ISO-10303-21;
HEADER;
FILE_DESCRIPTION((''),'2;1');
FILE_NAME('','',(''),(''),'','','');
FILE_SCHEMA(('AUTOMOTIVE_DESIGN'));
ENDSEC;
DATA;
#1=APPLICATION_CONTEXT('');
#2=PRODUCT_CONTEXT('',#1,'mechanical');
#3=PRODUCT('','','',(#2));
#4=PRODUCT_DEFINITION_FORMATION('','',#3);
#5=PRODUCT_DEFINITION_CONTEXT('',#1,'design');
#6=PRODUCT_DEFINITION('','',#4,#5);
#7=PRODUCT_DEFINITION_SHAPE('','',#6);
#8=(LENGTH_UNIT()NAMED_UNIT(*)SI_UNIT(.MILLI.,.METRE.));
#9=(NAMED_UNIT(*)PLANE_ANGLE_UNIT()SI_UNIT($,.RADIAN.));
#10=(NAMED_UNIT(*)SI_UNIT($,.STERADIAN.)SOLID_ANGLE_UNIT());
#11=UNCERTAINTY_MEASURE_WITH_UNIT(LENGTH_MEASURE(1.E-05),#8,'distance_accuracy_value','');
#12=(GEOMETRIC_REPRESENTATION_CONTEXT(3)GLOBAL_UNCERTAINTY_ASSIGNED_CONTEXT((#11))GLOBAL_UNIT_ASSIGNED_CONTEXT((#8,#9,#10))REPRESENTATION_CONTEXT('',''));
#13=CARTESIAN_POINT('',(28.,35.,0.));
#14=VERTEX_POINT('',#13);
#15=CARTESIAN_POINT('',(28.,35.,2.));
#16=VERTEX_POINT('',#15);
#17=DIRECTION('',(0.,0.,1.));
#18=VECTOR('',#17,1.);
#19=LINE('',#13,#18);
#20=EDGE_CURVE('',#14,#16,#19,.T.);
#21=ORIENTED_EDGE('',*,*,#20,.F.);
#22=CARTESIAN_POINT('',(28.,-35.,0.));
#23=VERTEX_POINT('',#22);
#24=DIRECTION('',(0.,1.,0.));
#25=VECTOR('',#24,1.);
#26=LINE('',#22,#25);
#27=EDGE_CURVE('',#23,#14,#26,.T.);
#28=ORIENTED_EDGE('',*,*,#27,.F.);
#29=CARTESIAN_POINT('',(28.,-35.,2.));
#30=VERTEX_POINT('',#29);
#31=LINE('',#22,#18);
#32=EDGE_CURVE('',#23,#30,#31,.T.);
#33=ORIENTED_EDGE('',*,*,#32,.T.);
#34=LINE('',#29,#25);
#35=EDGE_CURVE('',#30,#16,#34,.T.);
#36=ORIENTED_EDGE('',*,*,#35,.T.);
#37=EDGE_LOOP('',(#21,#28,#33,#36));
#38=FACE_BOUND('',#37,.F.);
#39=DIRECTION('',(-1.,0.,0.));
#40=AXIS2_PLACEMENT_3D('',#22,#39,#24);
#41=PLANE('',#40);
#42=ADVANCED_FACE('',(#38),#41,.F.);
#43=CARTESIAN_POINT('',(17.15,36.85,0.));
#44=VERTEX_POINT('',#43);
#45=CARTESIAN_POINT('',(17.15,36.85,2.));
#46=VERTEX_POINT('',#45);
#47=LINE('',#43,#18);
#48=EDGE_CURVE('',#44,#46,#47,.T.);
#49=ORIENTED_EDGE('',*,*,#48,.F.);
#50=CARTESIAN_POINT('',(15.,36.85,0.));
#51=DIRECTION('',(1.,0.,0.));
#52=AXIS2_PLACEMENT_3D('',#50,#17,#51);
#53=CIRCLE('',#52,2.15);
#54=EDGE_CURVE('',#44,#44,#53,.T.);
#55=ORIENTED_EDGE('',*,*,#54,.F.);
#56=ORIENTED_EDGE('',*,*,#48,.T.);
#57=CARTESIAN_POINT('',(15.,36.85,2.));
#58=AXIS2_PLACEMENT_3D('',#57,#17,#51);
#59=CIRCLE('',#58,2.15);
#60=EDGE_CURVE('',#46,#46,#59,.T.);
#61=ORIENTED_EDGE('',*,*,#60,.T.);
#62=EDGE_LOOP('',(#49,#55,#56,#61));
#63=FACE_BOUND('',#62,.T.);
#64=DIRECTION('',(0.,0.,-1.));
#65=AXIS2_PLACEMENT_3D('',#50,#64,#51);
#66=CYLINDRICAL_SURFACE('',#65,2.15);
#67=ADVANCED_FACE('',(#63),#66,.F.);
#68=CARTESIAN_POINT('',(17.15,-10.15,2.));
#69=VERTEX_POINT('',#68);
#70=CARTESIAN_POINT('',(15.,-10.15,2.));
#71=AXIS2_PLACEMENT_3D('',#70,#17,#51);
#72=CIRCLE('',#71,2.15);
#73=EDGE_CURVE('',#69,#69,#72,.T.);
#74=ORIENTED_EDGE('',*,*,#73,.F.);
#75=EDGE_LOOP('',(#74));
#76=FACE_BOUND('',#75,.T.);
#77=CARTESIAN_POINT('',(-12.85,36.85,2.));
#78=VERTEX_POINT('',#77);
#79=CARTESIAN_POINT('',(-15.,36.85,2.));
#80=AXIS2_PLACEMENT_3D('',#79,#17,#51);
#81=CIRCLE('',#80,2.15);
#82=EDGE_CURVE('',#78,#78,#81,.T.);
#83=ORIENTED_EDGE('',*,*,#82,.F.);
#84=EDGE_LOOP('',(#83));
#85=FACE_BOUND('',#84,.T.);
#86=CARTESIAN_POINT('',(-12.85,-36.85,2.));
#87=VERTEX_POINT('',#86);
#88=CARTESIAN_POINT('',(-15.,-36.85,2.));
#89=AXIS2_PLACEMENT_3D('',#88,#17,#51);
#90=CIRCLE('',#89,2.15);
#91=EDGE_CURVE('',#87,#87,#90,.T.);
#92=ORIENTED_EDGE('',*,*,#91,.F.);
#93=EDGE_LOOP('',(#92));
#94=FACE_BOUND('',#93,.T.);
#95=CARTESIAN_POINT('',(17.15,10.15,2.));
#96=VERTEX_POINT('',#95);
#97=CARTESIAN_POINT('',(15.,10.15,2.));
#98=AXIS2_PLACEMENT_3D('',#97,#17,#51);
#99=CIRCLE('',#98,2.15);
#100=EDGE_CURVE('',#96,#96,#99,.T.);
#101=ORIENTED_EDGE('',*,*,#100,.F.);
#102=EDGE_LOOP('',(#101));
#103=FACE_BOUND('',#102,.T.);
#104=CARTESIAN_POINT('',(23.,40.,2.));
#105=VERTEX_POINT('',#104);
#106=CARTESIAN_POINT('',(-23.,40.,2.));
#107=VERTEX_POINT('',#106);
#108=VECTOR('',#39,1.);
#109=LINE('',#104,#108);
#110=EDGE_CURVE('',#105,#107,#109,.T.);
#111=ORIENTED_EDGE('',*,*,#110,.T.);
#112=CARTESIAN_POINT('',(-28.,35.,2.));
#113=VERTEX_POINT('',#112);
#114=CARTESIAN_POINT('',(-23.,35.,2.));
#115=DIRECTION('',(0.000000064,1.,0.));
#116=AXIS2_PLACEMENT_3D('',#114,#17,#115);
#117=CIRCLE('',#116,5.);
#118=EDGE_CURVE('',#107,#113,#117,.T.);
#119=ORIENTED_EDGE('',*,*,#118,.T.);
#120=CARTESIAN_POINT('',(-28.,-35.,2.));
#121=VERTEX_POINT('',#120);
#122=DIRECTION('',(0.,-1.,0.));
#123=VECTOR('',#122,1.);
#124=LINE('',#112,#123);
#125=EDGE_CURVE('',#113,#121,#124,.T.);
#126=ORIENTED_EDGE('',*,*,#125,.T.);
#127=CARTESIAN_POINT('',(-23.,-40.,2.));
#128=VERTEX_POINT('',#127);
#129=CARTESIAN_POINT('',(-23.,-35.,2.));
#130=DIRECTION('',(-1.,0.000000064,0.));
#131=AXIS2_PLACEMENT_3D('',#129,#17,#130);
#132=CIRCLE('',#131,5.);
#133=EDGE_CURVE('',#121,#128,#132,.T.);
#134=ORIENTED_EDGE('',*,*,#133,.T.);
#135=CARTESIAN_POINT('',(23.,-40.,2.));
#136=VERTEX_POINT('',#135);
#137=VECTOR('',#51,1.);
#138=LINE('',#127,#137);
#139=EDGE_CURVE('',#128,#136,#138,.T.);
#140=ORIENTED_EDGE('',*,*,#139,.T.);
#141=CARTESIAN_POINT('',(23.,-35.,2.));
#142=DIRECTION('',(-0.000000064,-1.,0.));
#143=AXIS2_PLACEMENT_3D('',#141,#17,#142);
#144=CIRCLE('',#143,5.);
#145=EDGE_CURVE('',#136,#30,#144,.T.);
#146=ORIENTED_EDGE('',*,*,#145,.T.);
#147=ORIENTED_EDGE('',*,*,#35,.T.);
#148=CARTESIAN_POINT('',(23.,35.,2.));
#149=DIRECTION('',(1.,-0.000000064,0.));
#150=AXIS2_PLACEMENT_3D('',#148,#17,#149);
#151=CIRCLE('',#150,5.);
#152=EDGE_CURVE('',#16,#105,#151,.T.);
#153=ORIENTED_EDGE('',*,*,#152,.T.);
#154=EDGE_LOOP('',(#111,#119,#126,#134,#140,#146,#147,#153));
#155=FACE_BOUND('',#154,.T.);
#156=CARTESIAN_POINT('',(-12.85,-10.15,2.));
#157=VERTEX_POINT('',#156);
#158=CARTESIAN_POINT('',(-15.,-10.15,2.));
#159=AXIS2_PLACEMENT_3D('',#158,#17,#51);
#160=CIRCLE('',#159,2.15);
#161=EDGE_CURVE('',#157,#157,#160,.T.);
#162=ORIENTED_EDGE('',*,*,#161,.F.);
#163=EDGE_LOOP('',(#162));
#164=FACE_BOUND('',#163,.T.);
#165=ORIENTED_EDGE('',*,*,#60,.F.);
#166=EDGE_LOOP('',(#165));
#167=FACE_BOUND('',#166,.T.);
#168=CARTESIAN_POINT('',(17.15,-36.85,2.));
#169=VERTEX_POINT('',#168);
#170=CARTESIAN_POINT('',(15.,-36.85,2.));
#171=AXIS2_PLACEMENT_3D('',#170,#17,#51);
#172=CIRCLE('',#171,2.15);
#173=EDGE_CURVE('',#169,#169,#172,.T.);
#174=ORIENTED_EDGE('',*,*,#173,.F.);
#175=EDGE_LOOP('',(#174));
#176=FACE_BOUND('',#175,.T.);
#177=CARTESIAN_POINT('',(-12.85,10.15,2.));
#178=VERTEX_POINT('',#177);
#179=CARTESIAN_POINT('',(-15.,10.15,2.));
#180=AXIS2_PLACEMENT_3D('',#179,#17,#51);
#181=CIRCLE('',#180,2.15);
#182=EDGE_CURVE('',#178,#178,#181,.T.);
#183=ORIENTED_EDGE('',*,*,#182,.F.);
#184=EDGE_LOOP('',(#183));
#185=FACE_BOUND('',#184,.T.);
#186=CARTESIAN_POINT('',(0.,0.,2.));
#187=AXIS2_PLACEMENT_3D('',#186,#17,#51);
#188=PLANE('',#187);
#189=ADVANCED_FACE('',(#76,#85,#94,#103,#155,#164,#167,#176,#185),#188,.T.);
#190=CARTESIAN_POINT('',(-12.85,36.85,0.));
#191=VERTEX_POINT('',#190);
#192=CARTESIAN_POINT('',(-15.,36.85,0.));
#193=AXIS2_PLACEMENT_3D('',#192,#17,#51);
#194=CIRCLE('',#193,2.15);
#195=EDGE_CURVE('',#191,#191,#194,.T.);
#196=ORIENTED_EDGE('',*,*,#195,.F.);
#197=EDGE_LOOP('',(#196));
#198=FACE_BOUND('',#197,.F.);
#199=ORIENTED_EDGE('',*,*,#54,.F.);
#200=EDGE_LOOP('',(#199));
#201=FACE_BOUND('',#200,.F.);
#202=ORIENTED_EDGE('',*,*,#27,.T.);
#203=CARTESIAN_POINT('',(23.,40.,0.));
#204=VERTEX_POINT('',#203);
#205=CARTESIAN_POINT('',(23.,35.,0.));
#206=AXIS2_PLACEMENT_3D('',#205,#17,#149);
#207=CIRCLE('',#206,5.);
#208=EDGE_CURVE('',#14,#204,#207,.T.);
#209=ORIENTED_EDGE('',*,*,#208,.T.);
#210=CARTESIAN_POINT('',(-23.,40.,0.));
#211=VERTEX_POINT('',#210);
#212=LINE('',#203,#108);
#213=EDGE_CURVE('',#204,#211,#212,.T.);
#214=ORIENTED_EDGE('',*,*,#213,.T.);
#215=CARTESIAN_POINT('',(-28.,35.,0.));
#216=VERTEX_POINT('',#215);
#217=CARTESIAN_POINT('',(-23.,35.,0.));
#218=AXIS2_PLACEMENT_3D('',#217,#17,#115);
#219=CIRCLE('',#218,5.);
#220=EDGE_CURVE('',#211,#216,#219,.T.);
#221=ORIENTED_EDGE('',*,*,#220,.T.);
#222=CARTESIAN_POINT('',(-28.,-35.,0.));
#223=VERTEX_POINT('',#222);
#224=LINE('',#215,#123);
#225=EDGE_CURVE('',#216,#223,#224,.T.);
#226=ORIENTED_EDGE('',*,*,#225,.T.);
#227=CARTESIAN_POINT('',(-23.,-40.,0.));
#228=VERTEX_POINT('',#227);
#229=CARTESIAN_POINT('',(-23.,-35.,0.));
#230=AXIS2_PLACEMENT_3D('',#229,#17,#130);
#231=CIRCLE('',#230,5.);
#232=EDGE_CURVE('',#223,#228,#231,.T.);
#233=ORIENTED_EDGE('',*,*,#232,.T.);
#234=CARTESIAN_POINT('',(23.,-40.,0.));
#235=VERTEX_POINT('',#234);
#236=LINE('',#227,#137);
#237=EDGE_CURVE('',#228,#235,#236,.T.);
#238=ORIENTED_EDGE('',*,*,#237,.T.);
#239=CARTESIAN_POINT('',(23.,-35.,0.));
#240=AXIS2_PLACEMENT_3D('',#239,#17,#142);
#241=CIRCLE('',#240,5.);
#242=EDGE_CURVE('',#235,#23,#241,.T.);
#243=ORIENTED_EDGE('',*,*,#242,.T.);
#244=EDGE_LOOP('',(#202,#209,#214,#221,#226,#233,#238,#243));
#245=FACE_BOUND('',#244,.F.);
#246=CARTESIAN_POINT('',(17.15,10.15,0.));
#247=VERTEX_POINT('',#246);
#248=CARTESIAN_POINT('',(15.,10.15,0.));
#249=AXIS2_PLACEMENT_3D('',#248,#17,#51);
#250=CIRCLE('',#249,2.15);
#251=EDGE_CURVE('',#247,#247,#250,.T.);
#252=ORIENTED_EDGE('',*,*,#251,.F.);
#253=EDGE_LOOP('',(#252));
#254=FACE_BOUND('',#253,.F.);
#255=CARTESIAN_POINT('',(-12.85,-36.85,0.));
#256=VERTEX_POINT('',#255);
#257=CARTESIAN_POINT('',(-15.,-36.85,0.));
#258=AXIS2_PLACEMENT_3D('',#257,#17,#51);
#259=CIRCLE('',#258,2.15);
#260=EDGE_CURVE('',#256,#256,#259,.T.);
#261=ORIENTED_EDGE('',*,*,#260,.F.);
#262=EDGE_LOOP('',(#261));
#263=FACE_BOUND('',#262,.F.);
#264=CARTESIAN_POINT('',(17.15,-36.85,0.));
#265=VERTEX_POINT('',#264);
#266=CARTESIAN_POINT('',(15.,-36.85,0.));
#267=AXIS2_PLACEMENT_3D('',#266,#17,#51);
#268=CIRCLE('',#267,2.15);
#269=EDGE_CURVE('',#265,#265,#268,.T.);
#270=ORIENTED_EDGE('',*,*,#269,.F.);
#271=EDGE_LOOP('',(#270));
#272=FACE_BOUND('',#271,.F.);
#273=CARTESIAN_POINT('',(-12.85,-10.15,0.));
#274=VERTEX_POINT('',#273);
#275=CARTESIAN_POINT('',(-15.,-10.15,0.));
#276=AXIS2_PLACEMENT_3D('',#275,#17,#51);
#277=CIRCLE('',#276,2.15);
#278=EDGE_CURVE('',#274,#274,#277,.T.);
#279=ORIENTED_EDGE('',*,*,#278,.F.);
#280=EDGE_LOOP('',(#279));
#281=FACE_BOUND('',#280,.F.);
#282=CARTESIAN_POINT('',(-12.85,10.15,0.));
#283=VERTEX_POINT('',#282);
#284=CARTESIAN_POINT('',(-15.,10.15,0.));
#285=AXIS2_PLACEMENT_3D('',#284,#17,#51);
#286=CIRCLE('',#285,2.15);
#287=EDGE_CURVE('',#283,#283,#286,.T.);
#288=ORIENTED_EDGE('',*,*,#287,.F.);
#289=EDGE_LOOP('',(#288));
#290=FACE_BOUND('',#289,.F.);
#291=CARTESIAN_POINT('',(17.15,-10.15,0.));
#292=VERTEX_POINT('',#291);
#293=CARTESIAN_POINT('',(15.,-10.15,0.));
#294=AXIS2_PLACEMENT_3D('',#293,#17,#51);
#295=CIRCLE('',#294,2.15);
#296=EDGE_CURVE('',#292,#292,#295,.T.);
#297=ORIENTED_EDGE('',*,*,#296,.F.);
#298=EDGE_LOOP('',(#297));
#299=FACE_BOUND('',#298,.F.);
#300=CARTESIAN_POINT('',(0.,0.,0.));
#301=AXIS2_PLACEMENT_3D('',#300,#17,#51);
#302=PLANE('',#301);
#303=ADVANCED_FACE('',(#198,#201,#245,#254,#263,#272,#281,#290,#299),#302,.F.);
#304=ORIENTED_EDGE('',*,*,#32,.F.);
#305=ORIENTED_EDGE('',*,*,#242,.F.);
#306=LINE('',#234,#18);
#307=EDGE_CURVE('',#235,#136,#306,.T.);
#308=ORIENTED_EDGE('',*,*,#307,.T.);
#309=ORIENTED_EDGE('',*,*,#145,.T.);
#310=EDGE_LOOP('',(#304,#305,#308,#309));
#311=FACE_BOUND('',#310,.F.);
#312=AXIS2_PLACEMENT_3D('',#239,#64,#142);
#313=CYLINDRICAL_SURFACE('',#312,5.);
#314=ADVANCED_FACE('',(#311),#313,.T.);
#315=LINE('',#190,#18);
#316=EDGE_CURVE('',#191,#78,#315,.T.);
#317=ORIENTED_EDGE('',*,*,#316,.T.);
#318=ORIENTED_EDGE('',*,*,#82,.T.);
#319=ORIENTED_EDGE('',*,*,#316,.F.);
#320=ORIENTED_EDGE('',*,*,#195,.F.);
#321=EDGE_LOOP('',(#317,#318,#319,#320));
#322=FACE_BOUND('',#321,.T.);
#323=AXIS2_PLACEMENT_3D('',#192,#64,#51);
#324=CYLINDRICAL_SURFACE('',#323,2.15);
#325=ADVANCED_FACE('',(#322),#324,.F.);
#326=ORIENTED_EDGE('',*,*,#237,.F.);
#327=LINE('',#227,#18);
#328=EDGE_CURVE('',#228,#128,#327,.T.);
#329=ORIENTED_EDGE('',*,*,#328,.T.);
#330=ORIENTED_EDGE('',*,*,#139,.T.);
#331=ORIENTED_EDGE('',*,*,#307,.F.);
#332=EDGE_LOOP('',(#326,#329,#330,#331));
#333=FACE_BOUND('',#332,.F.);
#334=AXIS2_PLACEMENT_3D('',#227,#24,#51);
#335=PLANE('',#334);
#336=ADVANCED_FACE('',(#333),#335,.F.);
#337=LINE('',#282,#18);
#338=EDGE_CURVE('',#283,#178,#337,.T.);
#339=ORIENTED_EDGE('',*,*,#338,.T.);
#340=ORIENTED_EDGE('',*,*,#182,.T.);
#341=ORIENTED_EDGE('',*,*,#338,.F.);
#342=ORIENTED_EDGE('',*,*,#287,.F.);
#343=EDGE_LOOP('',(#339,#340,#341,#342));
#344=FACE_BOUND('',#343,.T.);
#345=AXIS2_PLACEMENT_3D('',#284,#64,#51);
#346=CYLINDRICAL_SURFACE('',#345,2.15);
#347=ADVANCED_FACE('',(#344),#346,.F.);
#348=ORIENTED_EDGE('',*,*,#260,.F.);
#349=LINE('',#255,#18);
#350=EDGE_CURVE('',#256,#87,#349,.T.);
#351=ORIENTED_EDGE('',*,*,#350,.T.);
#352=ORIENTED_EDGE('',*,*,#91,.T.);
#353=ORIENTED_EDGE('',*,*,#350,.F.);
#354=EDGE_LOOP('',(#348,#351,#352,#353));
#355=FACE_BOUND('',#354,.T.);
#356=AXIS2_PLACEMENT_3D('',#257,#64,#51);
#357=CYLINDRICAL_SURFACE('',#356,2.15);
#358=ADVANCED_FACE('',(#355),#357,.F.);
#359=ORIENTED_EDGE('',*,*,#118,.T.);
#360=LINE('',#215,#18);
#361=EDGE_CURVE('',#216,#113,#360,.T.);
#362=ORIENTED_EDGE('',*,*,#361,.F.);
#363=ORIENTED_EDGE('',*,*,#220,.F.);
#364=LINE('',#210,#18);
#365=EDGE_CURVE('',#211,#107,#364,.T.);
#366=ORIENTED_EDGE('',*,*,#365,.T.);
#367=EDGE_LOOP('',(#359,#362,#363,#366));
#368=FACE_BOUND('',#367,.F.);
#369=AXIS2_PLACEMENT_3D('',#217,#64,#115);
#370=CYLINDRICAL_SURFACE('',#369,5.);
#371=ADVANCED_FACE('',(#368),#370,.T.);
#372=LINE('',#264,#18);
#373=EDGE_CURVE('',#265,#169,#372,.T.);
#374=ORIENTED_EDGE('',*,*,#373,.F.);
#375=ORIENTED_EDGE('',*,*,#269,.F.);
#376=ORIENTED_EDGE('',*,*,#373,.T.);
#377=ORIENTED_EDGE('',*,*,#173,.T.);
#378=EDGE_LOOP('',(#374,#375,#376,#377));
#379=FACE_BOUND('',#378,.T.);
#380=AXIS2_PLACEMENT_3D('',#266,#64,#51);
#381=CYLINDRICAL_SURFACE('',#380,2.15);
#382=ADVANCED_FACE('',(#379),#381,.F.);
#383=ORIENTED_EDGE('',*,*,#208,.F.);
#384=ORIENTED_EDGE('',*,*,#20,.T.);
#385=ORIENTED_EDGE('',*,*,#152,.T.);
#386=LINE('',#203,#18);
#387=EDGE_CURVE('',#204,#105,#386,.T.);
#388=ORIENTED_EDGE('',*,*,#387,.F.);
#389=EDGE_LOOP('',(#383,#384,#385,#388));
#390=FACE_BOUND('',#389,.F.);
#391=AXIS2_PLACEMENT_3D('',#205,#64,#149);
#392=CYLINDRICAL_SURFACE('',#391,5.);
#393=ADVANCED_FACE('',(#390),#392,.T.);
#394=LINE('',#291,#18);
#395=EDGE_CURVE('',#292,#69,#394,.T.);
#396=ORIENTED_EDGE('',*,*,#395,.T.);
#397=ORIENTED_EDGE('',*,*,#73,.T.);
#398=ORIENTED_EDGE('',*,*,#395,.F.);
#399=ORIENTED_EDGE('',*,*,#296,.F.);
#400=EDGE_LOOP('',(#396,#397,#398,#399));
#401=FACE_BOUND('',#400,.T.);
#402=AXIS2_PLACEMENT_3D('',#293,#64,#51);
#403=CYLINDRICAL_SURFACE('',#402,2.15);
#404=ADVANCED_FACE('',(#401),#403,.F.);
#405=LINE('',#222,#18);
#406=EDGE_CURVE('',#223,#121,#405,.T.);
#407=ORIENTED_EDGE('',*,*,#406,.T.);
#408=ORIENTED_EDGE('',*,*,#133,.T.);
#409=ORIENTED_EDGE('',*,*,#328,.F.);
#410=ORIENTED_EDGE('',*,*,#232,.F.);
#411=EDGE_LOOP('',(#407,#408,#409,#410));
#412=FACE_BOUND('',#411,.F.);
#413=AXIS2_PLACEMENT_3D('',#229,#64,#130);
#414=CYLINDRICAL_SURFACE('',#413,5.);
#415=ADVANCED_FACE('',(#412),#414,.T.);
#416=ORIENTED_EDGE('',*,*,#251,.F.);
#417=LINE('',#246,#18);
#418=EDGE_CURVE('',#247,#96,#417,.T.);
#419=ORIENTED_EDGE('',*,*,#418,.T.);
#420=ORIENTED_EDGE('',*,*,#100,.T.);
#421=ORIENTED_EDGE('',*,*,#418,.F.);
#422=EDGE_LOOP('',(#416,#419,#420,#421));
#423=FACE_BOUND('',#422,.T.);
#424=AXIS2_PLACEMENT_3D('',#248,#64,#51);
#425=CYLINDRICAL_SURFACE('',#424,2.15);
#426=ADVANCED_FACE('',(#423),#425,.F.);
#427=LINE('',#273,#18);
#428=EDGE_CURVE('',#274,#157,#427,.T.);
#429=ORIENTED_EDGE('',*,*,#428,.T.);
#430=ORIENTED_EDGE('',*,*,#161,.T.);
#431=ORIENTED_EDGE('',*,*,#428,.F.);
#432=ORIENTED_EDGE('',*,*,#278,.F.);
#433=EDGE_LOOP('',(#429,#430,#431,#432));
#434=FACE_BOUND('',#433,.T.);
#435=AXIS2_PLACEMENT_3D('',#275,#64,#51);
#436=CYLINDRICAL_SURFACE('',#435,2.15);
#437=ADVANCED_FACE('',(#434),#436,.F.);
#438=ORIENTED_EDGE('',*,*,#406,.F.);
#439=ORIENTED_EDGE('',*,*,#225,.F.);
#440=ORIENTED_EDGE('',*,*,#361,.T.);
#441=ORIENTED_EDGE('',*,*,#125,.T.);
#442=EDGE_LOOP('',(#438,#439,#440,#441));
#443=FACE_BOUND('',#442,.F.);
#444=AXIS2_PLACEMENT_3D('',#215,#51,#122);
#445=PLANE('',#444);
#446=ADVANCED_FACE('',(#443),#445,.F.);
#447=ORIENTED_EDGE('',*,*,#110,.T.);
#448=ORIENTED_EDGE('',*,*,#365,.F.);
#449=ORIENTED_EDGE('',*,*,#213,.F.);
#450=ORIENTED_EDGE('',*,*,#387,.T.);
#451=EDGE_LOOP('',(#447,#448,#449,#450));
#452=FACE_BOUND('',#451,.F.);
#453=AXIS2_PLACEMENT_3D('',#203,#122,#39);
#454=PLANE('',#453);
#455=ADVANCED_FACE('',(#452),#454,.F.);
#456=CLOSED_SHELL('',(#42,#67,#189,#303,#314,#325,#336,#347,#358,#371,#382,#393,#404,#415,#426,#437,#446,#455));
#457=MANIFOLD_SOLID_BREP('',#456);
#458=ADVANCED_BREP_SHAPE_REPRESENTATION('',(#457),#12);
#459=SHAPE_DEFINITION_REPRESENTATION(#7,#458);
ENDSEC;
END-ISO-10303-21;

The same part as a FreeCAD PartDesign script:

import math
import FreeCAD as App
import Part
import Sketcher

V = App.Vector

doc = App.newDocument("Part")
body = doc.addObject("PartDesign::Body", "Body")

sketch1 = doc.addObject("Sketcher::SketchObject", "Sketch")
body.addObject(sketch1)
sketch1.AttachmentSupport = (doc.XY_Plane, [""])
sketch1.MapMode = "FlatFace"
sketch1.addGeometry(Part.ArcOfCircle(Part.Circle(V(23, 35, 0), V(0, 0, 1), 5), math.radians(0), math.radians(90)), False)
sketch1.addGeometry(Part.LineSegment(V(23, 40, 0), V(-23, 40, 0)), False)
sketch1.addGeometry(Part.ArcOfCircle(Part.Circle(V(-23, 35, 0), V(0, 0, 1), 5), math.radians(90), math.radians(180)), False)
sketch1.addGeometry(Part.LineSegment(V(-28, 35, 0), V(-28, -35, 0)), False)
sketch1.addGeometry(Part.ArcOfCircle(Part.Circle(V(-23, -35, 0), V(0, 0, 1), 5), math.radians(180), math.radians(270)), False)
sketch1.addGeometry(Part.LineSegment(V(-23, -40, 0), V(23, -40, 0)), False)
sketch1.addGeometry(Part.ArcOfCircle(Part.Circle(V(23, -35, 0), V(0, 0, 1), 5), math.radians(-90), math.radians(0)), False)
sketch1.addGeometry(Part.LineSegment(V(28, -35, 0), V(28, 35, 0)), False)
sketch1.addGeometry(Part.Circle(V(-15, -36.9, 0), V(0, 0, 1), 2.1), False)
sketch1.addGeometry(Part.Circle(V(-15, -10.2, 0), V(0, 0, 1), 2.1), False)
sketch1.addGeometry(Part.Circle(V(15, -36.9, 0), V(0, 0, 1), 2.1), False)
sketch1.addGeometry(Part.Circle(V(15, -10.2, 0), V(0, 0, 1), 2.1), False)
sketch1.addGeometry(Part.Circle(V(-15, 10.2, 0), V(0, 0, 1), 2.1), False)
sketch1.addGeometry(Part.Circle(V(-15, 36.9, 0), V(0, 0, 1), 2.1), False)
sketch1.addGeometry(Part.Circle(V(15, 10.2, 0), V(0, 0, 1), 2.1), False)
sketch1.addGeometry(Part.Circle(V(15, 36.9, 0), V(0, 0, 1), 2.1), False)
sketch1.addConstraint(Sketcher.Constraint("Tangent", 0, 2, 1, 1))
sketch1.addConstraint(Sketcher.Constraint("Tangent", 1, 2, 2, 1))
sketch1.addConstraint(Sketcher.Constraint("Tangent", 2, 2, 3, 1))
sketch1.addConstraint(Sketcher.Constraint("Tangent", 3, 2, 4, 1))
sketch1.addConstraint(Sketcher.Constraint("Tangent", 4, 2, 5, 1))
sketch1.addConstraint(Sketcher.Constraint("Tangent", 5, 2, 6, 1))
sketch1.addConstraint(Sketcher.Constraint("Tangent", 6, 2, 7, 1))
sketch1.addConstraint(Sketcher.Constraint("Tangent", 7, 2, 0, 1))
sketch1.addConstraint(Sketcher.Constraint("Horizontal", 1))
sketch1.addConstraint(Sketcher.Constraint("Vertical", 3))
sketch1.addConstraint(Sketcher.Constraint("Horizontal", 5))
sketch1.addConstraint(Sketcher.Constraint("Vertical", 7))
sketch1.addConstraint(Sketcher.Constraint("Equal", 0, 2))
sketch1.addConstraint(Sketcher.Constraint("Equal", 2, 4))
sketch1.addConstraint(Sketcher.Constraint("Equal", 4, 6))
sketch1.addConstraint(Sketcher.Constraint("Equal", 8, 9))
sketch1.addConstraint(Sketcher.Constraint("Equal", 9, 10))
sketch1.addConstraint(Sketcher.Constraint("Equal", 10, 11))
sketch1.addConstraint(Sketcher.Constraint("Equal", 11, 12))
sketch1.addConstraint(Sketcher.Constraint("Equal", 12, 13))
sketch1.addConstraint(Sketcher.Constraint("Equal", 13, 14))
sketch1.addConstraint(Sketcher.Constraint("Equal", 14, 15))
sketch1.addConstraint(Sketcher.Constraint("Symmetric", 0, 3, 4, 3, -1, 1))
sketch1.addConstraint(Sketcher.Constraint("Symmetric", 11, 3, 12, 3, -1, 1))
sketch1.addConstraint(Sketcher.Constraint("Symmetric", 10, 3, 13, 3, -1, 1))
sketch1.addConstraint(Sketcher.Constraint("Symmetric", 9, 3, 14, 3, -1, 1))
sketch1.addConstraint(Sketcher.Constraint("Symmetric", 8, 3, 15, 3, -1, 1))
sketch1.addConstraint(Sketcher.Constraint("Symmetric", 8, 3, 10, 3, -2))
sketch1.addConstraint(Sketcher.Constraint("Symmetric", 9, 3, 11, 3, -2))
sketch1.addConstraint(Sketcher.Constraint("Vertical", 8, 3, 9, 3))
sketch1.addConstraint(Sketcher.Constraint("Radius", 0, 5.0))
sketch1.addConstraint(Sketcher.Constraint("Diameter", 8, 4.3))
sketch1.addConstraint(Sketcher.Constraint("DistanceX", 1, 2, 1, 1, 46.0))
sketch1.addConstraint(Sketcher.Constraint("DistanceY", 3, 2, 3, 1, 70.0))
sketch1.addConstraint(Sketcher.Constraint("DistanceX", 8, 3, -1, 1, 15.0))
sketch1.addConstraint(Sketcher.Constraint("DistanceY", 9, 3, 13, 3, 47.0))
sketch1.addConstraint(Sketcher.Constraint("DistanceY", 8, 3, 9, 3, 26.7))
pad1 = doc.addObject("PartDesign::Pad", "Pad")
body.addObject(pad1)
pad1.Profile = sketch1
pad1.Length = 2

doc.recompute()
